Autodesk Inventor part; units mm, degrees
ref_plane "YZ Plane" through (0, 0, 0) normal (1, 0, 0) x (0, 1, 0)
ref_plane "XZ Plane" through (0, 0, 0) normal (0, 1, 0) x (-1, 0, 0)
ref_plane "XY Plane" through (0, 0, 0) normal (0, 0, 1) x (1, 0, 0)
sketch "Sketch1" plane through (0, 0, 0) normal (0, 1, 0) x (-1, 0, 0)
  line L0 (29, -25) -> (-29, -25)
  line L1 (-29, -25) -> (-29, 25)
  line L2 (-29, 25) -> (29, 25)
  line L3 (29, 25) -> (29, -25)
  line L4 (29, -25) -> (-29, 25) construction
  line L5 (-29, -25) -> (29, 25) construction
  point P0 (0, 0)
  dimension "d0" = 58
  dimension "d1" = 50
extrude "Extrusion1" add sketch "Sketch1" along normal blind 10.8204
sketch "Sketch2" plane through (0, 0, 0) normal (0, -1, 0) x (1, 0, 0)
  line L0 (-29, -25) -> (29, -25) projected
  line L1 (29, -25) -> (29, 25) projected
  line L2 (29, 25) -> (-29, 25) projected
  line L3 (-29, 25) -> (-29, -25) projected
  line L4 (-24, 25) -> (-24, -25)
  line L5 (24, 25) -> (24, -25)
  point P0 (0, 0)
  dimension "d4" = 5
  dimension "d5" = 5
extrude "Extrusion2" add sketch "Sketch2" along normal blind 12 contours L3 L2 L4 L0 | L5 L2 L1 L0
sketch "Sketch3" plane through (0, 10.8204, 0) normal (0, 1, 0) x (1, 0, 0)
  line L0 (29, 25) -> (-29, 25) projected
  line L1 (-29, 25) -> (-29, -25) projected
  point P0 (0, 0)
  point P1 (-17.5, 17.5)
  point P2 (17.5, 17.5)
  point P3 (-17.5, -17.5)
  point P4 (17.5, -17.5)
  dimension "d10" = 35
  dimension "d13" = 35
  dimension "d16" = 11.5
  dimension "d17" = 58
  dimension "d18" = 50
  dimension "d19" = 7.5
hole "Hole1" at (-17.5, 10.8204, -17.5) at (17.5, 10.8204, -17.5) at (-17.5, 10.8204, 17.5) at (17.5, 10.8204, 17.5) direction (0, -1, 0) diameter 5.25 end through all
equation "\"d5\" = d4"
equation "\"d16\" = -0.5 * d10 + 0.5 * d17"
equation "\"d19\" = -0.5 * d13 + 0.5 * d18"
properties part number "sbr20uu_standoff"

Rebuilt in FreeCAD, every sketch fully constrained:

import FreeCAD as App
import Part
import Sketcher
from FreeCAD import Vector


def add_polygon(sketch, points):
    """Adds a closed chain of lines whose ends are joined by coincident constraints."""
    first, n = sketch.GeometryCount, len(points)
    for a, b in zip(points, points[1:] + points[:1]):
        sketch.addGeometry(Part.LineSegment(App.Vector(*a, 0), App.Vector(*b, 0)), False)
    for i in range(n):
        sketch.addConstraint(Sketcher.Constraint("Coincident", first + i, 2, first + (i + 1) % n, 1))

doc = App.newDocument("Part")
body = doc.addObject("PartDesign::Body", "Body")

# Sketch on XZ plane
sketch1 = doc.addObject("Sketcher::SketchObject", "Sketch")
body.addObject(sketch1)
sketch1.AttachmentSupport = (doc.XZ_Plane, [""])
sketch1.MapMode = "FlatFace"
add_polygon(sketch1, [(29, -25), (-29, -25), (-29, 25), (29, 25)])  # lines 0-3
sketch1.addConstraint([
    Sketcher.Constraint("Horizontal", 0),
    Sketcher.Constraint("Vertical", 1),
    Sketcher.Constraint("Horizontal", 2),
    Sketcher.Constraint("Vertical", 3),
    Sketcher.Constraint("Symmetric", 0, 2, 2, 2, -1, 1),
    Sketcher.Constraint("DistanceX", 0, 2, 0, 1, 58.0),
    Sketcher.Constraint("DistanceY", 1, 1, 1, 2, 50.0),
])
pad1 = doc.addObject("PartDesign::Pad", "Pad")
body.addObject(pad1)
pad1.Profile = sketch1
pad1.Length = 10.8204
pad1.Reversed = True

# Sketch on XZ plane
sketch2 = doc.addObject("Sketcher::SketchObject", "Sketch001")
body.addObject(sketch2)
sketch2.AttachmentSupport = (doc.XZ_Plane, [""])
sketch2.MapMode = "FlatFace"
add_polygon(sketch2, [(-29, 25), (-29, -25), (-24, -25), (-24, 25)])  # lines 0-3
add_polygon(sketch2, [(24, 25), (24, -25), (29, -25), (29, 25)])  # lines 4-7
sketch2.addConstraint([
    Sketcher.Constraint("Vertical", 0),
    Sketcher.Constraint("Horizontal", 1),
    Sketcher.Constraint("Vertical", 2),
    Sketcher.Constraint("Horizontal", 3),
    Sketcher.Constraint("Vertical", 4),
    Sketcher.Constraint("Horizontal", 5),
    Sketcher.Constraint("Vertical", 6),
    Sketcher.Constraint("Horizontal", 7),
    Sketcher.Constraint("Symmetric", 2, 2, 4, 2, -1, 1),
    Sketcher.Constraint("Symmetric", 0, 2, 6, 2, -1, 1),
    Sketcher.Constraint("Horizontal", 1, 2, 4, 2),
    Sketcher.Constraint("DistanceX", 1, 1, 1, 2, 5.0),
    Sketcher.Constraint("DistanceY", 0, 2, 0, 1, 50.0),
    Sketcher.Constraint("DistanceX", 0, 2, -1, 1, 29.0),
])
pad2 = doc.addObject("PartDesign::Pad", "Pad001")
body.addObject(pad2)
pad2.Profile = sketch2
pad2.Length = 12

# Sketch on XZ plane
sketch3 = doc.addObject("Sketcher::SketchObject", "Sketch002")
body.addObject(sketch3)
sketch3.AttachmentSupport = (doc.XZ_Plane, [""])
sketch3.MapMode = "FlatFace"
sketch3.AttachmentOffset = App.Placement(Vector(0, 0, -10.8204), App.Rotation())
sketch3.addGeometry([
    Part.Circle(Vector(-17.5, -17.5, 0), Vector(0, 0, 1), 2.625),
    Part.Circle(Vector(17.5, -17.5, 0), Vector(0, 0, 1), 2.625),
    Part.Circle(Vector(-17.5, 17.5, 0), Vector(0, 0, 1), 2.625),
    Part.Circle(Vector(17.5, 17.5, 0), Vector(0, 0, 1), 2.625),
], False)
sketch3.addConstraint([
    Sketcher.Constraint("Equal", 0, 1),
    Sketcher.Constraint("Equal", 1, 2),
    Sketcher.Constraint("Equal", 2, 3),
    Sketcher.Constraint("Symmetric", 1, 3, 2, 3, -1, 1),
    Sketcher.Constraint("Symmetric", 0, 3, 3, 3, -1, 1),
    Sketcher.Constraint("Symmetric", 0, 3, 1, 3, -2),
    Sketcher.Constraint("Diameter", 0, 5.25),
    Sketcher.Constraint("DistanceX", 0, 3, 1, 3, 35.0),
    Sketcher.Constraint("DistanceY", 0, 3, 2, 3, 35.0),
])
doc.recompute()
hole = doc.addObject("PartDesign::Hole", "Hole")
body.addObject(hole)
hole.Profile = sketch3
hole.ThreadType = "None"
hole.Diameter = 5.25
hole.DepthType = "ThroughAll"
hole.Reversed = True

doc.recompute()
